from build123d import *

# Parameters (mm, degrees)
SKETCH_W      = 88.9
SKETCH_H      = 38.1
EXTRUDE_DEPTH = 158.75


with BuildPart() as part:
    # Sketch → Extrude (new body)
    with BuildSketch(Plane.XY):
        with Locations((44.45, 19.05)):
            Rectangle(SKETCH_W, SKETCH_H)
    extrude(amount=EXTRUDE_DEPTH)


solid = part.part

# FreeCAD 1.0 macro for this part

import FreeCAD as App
import Part
import Sketcher
Q = App.Units.Quantity


def add_polygon(sketch, points):
    """Adds a closed chain of lines whose ends are joined by coincident constraints."""
    first, n = sketch.GeometryCount, len(points)
    for a, b in zip(points, points[1:] + points[:1]):
        sketch.addGeometry(Part.LineSegment(App.Vector(*a, 0), App.Vector(*b, 0)), False)
    for i in range(n):
        sketch.addConstraint(Sketcher.Constraint("Coincident", first + i, 2, first + (i + 1) % n, 1))

doc = App.newDocument("Part")
params = doc.addObject("Spreadsheet::Sheet", "Params")
for row, (alias, value) in enumerate([
    ("sketch1_width", "3.5 in"),
    ("sketch1_height", "1.5 in"),
    ("pad1_length", "6.25 in"),
], start=1):
    params.set(f"A{row}", alias)
    params.set(f"B{row}", "=" + value)
    params.setAlias(f"B{row}", alias)

body = doc.addObject("PartDesign::Body", "Body")

# Sketch on XY plane
sketch1 = body.newObject("Sketcher::SketchObject", "Sketch")
sketch1.AttachmentSupport = (doc.getObject("XY_Plane"), [""])
sketch1.MapMode = "FlatFace"
add_polygon(sketch1, [(0, 38), (0, 0), (89, 0), (89, 38)])  # lines 0-3
sketch1.addConstraint([
    Sketcher.Constraint("Vertical", 0),
    Sketcher.Constraint("Horizontal", 1),
    Sketcher.Constraint("Vertical", 2),
    Sketcher.Constraint("Horizontal", 3),
    Sketcher.Constraint("Coincident", 0, 2, -1, 1),
    Sketcher.Constraint("DistanceX", 1, 1, 1, 2, Q("3.5 in")),
    Sketcher.Constraint("DistanceY", 0, 2, 0, 1, Q("1.5 in")),
])
sketch1.setExpression("Constraints[9]", "Params.sketch1_width")
sketch1.setExpression("Constraints[10]", "Params.sketch1_height")
pad1 = body.newObject("PartDesign::Pad", "Pad")
pad1.Profile = sketch1
pad1.setExpression("Length", "Params.pad1_length")

doc.recompute()
